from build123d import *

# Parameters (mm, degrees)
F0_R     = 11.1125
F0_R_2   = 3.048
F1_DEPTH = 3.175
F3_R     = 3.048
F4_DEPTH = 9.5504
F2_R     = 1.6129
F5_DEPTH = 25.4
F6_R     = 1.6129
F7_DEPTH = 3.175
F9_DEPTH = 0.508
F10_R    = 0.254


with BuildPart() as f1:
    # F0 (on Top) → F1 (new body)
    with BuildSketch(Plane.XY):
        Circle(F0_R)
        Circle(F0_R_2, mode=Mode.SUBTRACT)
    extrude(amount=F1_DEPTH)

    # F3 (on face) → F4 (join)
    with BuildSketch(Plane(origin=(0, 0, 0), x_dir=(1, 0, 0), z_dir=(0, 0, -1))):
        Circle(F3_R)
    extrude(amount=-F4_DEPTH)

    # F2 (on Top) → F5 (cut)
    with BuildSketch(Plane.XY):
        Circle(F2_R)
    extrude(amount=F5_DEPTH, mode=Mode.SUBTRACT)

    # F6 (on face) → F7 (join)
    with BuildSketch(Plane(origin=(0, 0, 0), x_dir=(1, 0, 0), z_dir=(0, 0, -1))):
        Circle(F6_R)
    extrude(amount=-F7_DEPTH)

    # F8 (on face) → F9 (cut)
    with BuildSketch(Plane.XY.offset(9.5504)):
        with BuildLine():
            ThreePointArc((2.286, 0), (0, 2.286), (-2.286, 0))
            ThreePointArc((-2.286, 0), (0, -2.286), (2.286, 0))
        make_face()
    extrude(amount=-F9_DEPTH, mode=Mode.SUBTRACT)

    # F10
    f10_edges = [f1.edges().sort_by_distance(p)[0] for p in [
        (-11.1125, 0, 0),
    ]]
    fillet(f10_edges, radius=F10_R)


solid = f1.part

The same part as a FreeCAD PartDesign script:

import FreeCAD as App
import Part
import Sketcher
Q = App.Units.Quantity


def edges_at(feature, points):
    """Names of the edges that pass closest to the given points."""
    edges = feature.Shape.Edges
    near = lambda p: min(range(len(edges)), key=lambda i: edges[i].distToShape(Part.Vertex(*p))[0])
    return sorted({f"Edge{near(p) + 1}" for p in points})

doc = App.newDocument("Part")
body = doc.addObject("PartDesign::Body", "Body")

sketch1 = body.newObject("Sketcher::SketchObject", "Sketch")
sketch1.AttachmentSupport = (doc.getObject("XY_Plane"), [""])
sketch1.MapMode = "FlatFace"
sketch1.addGeometry(Part.Circle(App.Vector(0, 0, 0), App.Vector(0, 0, 1), 11.1125), False)
sketch1.addGeometry(Part.Circle(App.Vector(0, 0, 0), App.Vector(0, 0, 1), 3.048), False)
sketch1.addConstraint(Sketcher.Constraint("Coincident", 0, 3, -1, 1))
sketch1.addConstraint(Sketcher.Constraint("Coincident", 1, 3, -1, 1))
sketch1.addConstraint(Sketcher.Constraint("Diameter", 1, Q("0.24 in")))
sketch1.addConstraint(Sketcher.Constraint("Diameter", 0, Q("0.875 in")))
pad1 = body.newObject("PartDesign::Pad", "Pad")
pad1.Profile = sketch1
pad1.Length = Q("0.125 in")

sketch2 = body.newObject("Sketcher::SketchObject", "Sketch001")
sketch2.AttachmentSupport = (doc.getObject("XY_Plane"), [""])
sketch2.MapMode = "FlatFace"
sketch2.addGeometry(Part.Circle(App.Vector(0, 0, 0), App.Vector(0, 0, 1), 3.048), False)
sketch2.addConstraint(Sketcher.Constraint("Coincident", 0, 3, -1, 1))
sketch2.addConstraint(Sketcher.Constraint("Diameter", 0, Q("0.24 in")))
pad2 = body.newObject("PartDesign::Pad", "Pad001")
pad2.Profile = sketch2
pad2.Length = Q("0.376 in")

sketch3 = body.newObject("Sketcher::SketchObject", "Sketch002")
sketch3.AttachmentSupport = (doc.getObject("XY_Plane"), [""])
sketch3.MapMode = "FlatFace"
sketch3.addGeometry(Part.Circle(App.Vector(0, 0, 0), App.Vector(0, 0, 1), 1.6129), False)
sketch3.addConstraint(Sketcher.Constraint("Coincident", 0, 3, -1, 1))
sketch3.addConstraint(Sketcher.Constraint("Diameter", 0, Q("0.127 in")))
pocket1 = body.newObject("PartDesign::Pocket", "Pocket")
pocket1.Profile = sketch3
pocket1.Length = Q("1 in")
pocket1.Reversed = True

sketch4 = body.newObject("Sketcher::SketchObject", "Sketch003")
sketch4.AttachmentSupport = (doc.getObject("XY_Plane"), [""])
sketch4.MapMode = "FlatFace"
sketch4.addGeometry(Part.Circle(App.Vector(0, 0, 0), App.Vector(0, 0, 1), 1.6129), False)
sketch4.addConstraint(Sketcher.Constraint("Coincident", 0, 3, -1, 1))
sketch4.addConstraint(Sketcher.Constraint("Diameter", 0, Q("0.127 in")))
pad3 = body.newObject("PartDesign::Pad", "Pad002")
pad3.Profile = sketch4
pad3.Length = Q("0.125 in")

sketch5 = body.newObject("Sketcher::SketchObject", "Sketch004")
sketch5.AttachmentSupport = (doc.getObject("XY_Plane"), [""])
sketch5.MapMode = "FlatFace"
sketch5.AttachmentOffset = App.Placement(App.Vector(0, 0, 0.376 * 25.4), App.Rotation())
sketch5.addGeometry(Part.Circle(App.Vector(0, 0, 0), App.Vector(0, 0, 1), 2.286), False)
sketch5.addConstraint(Sketcher.Constraint("Coincident", 0, 3, -1, 1))
sketch5.addConstraint(Sketcher.Constraint("Diameter", 0, Q("0.18 in")))
pocket2 = body.newObject("PartDesign::Pocket", "Pocket001")
pocket2.Profile = sketch5
pocket2.Length = Q("0.02 in")
doc.recompute()

fillet = body.newObject("PartDesign::Fillet", "Fillet")
fillet.Base = (pocket2, edges_at(pocket2, [(-11.113, 0, 0)]))
fillet.Radius = Q("0.01 in")

doc.recompute()
